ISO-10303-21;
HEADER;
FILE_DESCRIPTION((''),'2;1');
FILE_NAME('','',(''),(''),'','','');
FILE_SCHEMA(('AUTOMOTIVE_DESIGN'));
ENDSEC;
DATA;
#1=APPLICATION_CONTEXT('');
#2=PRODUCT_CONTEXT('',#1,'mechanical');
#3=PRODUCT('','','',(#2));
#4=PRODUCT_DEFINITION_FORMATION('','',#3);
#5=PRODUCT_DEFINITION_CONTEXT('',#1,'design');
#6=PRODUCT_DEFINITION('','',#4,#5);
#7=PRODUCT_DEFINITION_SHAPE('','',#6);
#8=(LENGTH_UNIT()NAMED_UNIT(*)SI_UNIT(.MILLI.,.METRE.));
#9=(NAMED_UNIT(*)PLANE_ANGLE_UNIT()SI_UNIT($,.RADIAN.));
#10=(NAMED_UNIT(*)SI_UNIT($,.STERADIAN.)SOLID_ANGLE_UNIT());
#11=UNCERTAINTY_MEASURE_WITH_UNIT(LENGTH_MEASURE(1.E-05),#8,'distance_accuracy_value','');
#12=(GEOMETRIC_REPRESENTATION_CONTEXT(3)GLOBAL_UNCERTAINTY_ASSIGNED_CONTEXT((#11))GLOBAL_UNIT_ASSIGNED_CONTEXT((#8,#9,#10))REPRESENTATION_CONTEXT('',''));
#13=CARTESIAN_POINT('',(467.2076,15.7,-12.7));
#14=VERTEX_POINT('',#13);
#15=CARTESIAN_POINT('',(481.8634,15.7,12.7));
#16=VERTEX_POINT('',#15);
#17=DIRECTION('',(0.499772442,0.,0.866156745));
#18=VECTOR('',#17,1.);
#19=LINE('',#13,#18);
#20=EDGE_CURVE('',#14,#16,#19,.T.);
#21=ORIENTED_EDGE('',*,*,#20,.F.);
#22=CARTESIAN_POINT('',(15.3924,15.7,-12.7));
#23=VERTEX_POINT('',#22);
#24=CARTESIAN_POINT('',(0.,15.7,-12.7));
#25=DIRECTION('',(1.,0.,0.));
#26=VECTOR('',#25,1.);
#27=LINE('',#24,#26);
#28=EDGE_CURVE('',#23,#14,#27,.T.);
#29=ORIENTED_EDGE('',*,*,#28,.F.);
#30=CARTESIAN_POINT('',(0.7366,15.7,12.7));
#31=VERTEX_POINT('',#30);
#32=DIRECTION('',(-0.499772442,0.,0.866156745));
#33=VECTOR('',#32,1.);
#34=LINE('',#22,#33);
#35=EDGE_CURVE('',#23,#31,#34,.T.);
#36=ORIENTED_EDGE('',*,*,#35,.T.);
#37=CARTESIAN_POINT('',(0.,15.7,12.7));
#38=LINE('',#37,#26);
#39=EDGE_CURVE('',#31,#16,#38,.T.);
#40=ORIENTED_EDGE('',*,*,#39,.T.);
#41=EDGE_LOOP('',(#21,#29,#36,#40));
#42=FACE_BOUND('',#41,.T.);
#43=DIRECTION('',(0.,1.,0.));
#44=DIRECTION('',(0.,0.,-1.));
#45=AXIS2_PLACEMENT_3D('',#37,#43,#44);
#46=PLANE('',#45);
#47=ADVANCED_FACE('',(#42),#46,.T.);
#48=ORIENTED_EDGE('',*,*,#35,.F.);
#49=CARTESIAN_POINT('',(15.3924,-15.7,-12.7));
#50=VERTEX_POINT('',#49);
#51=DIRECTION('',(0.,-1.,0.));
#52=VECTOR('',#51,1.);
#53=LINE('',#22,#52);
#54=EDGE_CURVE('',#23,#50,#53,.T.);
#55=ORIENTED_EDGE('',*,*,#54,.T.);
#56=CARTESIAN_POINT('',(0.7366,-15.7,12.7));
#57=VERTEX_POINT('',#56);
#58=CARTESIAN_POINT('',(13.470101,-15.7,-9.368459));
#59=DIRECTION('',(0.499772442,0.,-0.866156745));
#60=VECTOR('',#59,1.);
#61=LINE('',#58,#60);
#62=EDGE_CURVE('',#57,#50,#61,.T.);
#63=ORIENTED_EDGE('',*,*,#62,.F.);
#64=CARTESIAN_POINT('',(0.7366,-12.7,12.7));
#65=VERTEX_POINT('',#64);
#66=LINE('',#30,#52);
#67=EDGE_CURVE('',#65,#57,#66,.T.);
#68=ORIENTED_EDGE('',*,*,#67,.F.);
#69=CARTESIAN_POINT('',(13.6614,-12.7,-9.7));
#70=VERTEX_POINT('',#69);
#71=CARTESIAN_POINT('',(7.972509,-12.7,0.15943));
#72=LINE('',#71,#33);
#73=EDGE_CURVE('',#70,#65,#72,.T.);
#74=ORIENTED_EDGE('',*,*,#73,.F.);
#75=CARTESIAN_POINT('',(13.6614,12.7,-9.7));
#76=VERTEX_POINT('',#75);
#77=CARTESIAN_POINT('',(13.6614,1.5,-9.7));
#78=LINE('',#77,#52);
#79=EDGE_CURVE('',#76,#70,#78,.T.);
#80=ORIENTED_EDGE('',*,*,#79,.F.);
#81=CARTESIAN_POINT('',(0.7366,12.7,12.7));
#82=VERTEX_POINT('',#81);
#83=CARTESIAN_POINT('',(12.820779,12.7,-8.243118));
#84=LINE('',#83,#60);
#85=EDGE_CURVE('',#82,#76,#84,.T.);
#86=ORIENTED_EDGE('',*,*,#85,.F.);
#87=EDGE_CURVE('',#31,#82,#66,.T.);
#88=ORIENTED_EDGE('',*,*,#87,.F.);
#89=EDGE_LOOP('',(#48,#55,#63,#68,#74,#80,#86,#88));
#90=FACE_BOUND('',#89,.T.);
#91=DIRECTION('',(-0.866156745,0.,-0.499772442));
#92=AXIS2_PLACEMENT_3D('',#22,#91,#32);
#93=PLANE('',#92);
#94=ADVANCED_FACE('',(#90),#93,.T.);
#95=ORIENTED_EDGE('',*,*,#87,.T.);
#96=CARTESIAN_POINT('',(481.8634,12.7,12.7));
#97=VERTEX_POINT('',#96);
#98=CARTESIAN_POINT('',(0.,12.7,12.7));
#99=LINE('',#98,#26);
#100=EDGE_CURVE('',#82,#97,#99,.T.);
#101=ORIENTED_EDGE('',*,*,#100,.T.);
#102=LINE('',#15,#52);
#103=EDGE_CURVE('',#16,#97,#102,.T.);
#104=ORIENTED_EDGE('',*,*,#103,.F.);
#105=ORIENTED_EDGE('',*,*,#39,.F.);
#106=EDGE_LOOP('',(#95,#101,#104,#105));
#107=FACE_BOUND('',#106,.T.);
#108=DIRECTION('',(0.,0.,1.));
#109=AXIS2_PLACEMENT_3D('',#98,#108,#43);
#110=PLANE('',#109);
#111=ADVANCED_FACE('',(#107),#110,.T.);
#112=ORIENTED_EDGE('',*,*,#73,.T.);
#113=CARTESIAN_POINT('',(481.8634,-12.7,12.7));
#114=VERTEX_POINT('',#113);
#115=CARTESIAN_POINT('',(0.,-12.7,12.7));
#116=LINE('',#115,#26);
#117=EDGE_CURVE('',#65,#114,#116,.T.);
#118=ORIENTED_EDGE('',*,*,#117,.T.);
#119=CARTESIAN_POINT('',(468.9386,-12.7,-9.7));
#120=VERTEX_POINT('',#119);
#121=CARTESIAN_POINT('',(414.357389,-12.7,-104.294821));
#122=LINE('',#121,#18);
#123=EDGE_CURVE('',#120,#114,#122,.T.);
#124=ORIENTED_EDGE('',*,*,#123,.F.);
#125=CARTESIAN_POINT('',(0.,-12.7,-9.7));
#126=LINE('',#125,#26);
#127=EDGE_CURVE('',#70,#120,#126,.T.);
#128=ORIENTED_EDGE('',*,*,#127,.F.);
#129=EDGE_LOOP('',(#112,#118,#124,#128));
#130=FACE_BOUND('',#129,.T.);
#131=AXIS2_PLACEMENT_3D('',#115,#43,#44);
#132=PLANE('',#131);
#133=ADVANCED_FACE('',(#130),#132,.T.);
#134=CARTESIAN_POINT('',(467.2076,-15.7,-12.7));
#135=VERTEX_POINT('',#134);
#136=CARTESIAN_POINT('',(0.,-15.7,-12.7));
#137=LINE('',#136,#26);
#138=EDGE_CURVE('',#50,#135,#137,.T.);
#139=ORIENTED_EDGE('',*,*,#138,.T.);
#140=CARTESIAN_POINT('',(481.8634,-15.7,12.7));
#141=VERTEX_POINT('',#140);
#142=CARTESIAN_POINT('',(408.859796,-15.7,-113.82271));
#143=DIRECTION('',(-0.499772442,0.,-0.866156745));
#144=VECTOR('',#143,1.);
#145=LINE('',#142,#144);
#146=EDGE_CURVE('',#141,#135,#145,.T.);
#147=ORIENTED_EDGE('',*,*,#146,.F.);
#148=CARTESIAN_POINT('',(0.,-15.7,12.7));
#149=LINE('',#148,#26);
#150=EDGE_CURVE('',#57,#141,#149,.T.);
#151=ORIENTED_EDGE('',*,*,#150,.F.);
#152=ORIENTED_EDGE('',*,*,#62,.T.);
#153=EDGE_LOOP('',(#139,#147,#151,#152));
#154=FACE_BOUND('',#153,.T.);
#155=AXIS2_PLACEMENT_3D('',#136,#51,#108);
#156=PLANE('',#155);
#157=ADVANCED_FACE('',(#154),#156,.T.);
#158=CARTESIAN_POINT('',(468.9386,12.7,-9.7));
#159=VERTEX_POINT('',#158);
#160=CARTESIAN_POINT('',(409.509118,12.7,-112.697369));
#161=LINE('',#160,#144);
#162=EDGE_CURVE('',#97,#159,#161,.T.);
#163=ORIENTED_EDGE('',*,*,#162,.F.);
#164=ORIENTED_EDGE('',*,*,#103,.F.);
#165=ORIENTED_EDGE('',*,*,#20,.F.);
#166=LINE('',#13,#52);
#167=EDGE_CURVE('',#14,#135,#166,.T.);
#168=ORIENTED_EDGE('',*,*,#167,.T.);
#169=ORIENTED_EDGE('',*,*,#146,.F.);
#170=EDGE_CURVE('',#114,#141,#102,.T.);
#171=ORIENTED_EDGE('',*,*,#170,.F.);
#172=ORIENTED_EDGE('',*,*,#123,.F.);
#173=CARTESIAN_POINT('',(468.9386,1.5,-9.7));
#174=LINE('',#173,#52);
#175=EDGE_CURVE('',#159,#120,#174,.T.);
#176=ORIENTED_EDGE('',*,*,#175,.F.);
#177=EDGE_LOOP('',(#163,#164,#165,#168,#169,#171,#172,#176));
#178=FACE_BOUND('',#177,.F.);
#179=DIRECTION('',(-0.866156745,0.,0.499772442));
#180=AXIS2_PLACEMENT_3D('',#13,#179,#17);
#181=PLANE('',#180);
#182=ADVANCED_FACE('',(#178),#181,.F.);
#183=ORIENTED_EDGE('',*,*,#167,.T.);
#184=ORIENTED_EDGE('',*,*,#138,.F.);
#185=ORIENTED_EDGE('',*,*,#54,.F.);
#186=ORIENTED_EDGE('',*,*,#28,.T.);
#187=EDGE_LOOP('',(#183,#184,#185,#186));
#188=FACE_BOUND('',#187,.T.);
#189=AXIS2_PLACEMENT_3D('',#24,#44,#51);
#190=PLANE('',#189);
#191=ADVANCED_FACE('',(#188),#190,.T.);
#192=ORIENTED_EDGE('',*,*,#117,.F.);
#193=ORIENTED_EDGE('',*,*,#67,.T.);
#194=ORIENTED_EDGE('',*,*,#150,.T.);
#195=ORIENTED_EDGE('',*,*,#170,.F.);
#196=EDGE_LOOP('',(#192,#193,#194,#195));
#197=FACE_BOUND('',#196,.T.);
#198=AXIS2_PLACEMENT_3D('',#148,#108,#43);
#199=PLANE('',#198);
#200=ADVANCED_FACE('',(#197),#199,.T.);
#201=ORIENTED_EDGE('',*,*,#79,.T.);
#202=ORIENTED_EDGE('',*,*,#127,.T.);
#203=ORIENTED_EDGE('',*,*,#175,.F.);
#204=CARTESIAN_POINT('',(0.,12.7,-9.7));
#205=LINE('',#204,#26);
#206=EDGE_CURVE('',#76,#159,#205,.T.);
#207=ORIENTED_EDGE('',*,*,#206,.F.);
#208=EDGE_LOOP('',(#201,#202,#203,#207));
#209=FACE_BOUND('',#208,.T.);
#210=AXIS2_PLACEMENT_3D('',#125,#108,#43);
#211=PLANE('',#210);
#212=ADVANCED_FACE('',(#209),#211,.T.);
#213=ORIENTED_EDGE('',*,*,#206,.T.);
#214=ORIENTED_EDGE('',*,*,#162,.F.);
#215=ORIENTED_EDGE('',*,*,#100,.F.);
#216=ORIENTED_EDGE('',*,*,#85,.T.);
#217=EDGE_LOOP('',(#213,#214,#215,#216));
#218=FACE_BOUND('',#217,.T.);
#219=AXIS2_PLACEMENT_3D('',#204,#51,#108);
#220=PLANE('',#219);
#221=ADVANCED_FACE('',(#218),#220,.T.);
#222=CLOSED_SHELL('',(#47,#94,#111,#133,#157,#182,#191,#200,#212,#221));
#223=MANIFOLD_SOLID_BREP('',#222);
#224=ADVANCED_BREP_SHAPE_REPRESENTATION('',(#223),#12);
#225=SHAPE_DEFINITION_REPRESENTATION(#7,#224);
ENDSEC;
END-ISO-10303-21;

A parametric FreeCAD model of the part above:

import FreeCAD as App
import Part
import Sketcher
from FreeCAD import Vector
Q = App.Units.Quantity


def add_polygon(sketch, points):
    """Adds a closed chain of lines whose ends are joined by coincident constraints."""
    first, n = sketch.GeometryCount, len(points)
    for a, b in zip(points, points[1:] + points[:1]):
        sketch.addGeometry(Part.LineSegment(App.Vector(*a, 0), App.Vector(*b, 0)), False)
    for i in range(n):
        sketch.addConstraint(Sketcher.Constraint("Coincident", first + i, 2, first + (i + 1) % n, 1))

doc = App.newDocument("Part")
body = doc.addObject("PartDesign::Body", "Body")

# Sketch on YZ plane
sketch1 = body.newObject("Sketcher::SketchObject", "Sketch")
sketch1.AttachmentSupport = (doc.getObject("YZ_Plane"), [""])
sketch1.MapMode = "FlatFace"
add_polygon(sketch1, [(-12.7, 12.7), (-15.7, 12.7), (-15.7, -12.7), (15.7, -12.7), (15.7, 12.7), (12.7, 12.7), (12.7, -9.7), (-12.7, -9.7)])  # lines 0-7
sketch1.addConstraint([
    Sketcher.Constraint("Horizontal", 0),
    Sketcher.Constraint("Vertical", 1),
    Sketcher.Constraint("Horizontal", 2),
    Sketcher.Constraint("Vertical", 3),
    Sketcher.Constraint("Horizontal", 4),
    Sketcher.Constraint("Vertical", 5),
    Sketcher.Constraint("Horizontal", 6),
    Sketcher.Constraint("Vertical", 7),
    Sketcher.Constraint("Symmetric", 0, 2, 2, 2, -1, 1),
    Sketcher.Constraint("Symmetric", 4, 2, 7, 2, -2),
    Sketcher.Constraint("Equal", 6, 1),
    Sketcher.Constraint("DistanceX", 6, 2, 6, 1, Q("1 in")),
    Sketcher.Constraint("DistanceX", 0, 2, 0, 1, Q("0.1181 in")),
    Sketcher.Constraint("DistanceY", 2, 2, 5, 2, Q("0.1181 in")),
])
pad1 = body.newObject("PartDesign::Pad", "Pad")
pad1.Profile = sketch1
pad1.Length = Q("19 in")

# Sketch on XZ plane
sketch2 = body.newObject("Sketcher::SketchObject", "Sketch001")
sketch2.AttachmentSupport = (doc.getObject("XZ_Plane"), [""])
sketch2.MapMode = "FlatFace"
sketch2.AttachmentOffset = App.Placement(Vector(0, 0, -0.6181102 * 25.4), App.Rotation())
add_polygon(sketch2, [(481.8634, 12.7), (482.6, 12.7), (482.6, -12.7), (467.2076, -12.7)])  # lines 0-3
add_polygon(sketch2, [(0, -12.7), (0, 12.7), (0.7366, 12.7), (15.3924, -12.7)])  # lines 4-7
sketch2.addConstraint([
    Sketcher.Constraint("Horizontal", 0),
    Sketcher.Constraint("Vertical", 1),
    Sketcher.Constraint("Horizontal", 2),
    Sketcher.Constraint("Vertical", 4),
    Sketcher.Constraint("Horizontal", 5),
    Sketcher.Constraint("Horizontal", 7),
    Sketcher.Constraint("Symmetric", 4, 2, 7, 2, -1, 1),
    Sketcher.Constraint("Horizontal", 3, 2, 4, 2),
    Sketcher.Constraint("Horizontal", 2, 2, 6, 2),
    Sketcher.Constraint("Equal", 0, 5),
    Sketcher.Constraint("Equal", 2, 7),
    Sketcher.Constraint("DistanceX", 0, 1, 0, 2, Q("0.029 in")),
    Sketcher.Constraint("DistanceX", 2, 2, 2, 1, Q("0.606 in")),
    Sketcher.Constraint("DistanceY", 1, 2, 1, 1, Q("1 in")),
    Sketcher.Constraint("DistanceX", -1, 1, 0, 2, Q("19 in")),
])
pocket1 = body.newObject("PartDesign::Pocket", "Pocket")
pocket1.Profile = sketch2
pocket1.Length = Q("3 in")
pocket1.Reversed = True

doc.recompute()
